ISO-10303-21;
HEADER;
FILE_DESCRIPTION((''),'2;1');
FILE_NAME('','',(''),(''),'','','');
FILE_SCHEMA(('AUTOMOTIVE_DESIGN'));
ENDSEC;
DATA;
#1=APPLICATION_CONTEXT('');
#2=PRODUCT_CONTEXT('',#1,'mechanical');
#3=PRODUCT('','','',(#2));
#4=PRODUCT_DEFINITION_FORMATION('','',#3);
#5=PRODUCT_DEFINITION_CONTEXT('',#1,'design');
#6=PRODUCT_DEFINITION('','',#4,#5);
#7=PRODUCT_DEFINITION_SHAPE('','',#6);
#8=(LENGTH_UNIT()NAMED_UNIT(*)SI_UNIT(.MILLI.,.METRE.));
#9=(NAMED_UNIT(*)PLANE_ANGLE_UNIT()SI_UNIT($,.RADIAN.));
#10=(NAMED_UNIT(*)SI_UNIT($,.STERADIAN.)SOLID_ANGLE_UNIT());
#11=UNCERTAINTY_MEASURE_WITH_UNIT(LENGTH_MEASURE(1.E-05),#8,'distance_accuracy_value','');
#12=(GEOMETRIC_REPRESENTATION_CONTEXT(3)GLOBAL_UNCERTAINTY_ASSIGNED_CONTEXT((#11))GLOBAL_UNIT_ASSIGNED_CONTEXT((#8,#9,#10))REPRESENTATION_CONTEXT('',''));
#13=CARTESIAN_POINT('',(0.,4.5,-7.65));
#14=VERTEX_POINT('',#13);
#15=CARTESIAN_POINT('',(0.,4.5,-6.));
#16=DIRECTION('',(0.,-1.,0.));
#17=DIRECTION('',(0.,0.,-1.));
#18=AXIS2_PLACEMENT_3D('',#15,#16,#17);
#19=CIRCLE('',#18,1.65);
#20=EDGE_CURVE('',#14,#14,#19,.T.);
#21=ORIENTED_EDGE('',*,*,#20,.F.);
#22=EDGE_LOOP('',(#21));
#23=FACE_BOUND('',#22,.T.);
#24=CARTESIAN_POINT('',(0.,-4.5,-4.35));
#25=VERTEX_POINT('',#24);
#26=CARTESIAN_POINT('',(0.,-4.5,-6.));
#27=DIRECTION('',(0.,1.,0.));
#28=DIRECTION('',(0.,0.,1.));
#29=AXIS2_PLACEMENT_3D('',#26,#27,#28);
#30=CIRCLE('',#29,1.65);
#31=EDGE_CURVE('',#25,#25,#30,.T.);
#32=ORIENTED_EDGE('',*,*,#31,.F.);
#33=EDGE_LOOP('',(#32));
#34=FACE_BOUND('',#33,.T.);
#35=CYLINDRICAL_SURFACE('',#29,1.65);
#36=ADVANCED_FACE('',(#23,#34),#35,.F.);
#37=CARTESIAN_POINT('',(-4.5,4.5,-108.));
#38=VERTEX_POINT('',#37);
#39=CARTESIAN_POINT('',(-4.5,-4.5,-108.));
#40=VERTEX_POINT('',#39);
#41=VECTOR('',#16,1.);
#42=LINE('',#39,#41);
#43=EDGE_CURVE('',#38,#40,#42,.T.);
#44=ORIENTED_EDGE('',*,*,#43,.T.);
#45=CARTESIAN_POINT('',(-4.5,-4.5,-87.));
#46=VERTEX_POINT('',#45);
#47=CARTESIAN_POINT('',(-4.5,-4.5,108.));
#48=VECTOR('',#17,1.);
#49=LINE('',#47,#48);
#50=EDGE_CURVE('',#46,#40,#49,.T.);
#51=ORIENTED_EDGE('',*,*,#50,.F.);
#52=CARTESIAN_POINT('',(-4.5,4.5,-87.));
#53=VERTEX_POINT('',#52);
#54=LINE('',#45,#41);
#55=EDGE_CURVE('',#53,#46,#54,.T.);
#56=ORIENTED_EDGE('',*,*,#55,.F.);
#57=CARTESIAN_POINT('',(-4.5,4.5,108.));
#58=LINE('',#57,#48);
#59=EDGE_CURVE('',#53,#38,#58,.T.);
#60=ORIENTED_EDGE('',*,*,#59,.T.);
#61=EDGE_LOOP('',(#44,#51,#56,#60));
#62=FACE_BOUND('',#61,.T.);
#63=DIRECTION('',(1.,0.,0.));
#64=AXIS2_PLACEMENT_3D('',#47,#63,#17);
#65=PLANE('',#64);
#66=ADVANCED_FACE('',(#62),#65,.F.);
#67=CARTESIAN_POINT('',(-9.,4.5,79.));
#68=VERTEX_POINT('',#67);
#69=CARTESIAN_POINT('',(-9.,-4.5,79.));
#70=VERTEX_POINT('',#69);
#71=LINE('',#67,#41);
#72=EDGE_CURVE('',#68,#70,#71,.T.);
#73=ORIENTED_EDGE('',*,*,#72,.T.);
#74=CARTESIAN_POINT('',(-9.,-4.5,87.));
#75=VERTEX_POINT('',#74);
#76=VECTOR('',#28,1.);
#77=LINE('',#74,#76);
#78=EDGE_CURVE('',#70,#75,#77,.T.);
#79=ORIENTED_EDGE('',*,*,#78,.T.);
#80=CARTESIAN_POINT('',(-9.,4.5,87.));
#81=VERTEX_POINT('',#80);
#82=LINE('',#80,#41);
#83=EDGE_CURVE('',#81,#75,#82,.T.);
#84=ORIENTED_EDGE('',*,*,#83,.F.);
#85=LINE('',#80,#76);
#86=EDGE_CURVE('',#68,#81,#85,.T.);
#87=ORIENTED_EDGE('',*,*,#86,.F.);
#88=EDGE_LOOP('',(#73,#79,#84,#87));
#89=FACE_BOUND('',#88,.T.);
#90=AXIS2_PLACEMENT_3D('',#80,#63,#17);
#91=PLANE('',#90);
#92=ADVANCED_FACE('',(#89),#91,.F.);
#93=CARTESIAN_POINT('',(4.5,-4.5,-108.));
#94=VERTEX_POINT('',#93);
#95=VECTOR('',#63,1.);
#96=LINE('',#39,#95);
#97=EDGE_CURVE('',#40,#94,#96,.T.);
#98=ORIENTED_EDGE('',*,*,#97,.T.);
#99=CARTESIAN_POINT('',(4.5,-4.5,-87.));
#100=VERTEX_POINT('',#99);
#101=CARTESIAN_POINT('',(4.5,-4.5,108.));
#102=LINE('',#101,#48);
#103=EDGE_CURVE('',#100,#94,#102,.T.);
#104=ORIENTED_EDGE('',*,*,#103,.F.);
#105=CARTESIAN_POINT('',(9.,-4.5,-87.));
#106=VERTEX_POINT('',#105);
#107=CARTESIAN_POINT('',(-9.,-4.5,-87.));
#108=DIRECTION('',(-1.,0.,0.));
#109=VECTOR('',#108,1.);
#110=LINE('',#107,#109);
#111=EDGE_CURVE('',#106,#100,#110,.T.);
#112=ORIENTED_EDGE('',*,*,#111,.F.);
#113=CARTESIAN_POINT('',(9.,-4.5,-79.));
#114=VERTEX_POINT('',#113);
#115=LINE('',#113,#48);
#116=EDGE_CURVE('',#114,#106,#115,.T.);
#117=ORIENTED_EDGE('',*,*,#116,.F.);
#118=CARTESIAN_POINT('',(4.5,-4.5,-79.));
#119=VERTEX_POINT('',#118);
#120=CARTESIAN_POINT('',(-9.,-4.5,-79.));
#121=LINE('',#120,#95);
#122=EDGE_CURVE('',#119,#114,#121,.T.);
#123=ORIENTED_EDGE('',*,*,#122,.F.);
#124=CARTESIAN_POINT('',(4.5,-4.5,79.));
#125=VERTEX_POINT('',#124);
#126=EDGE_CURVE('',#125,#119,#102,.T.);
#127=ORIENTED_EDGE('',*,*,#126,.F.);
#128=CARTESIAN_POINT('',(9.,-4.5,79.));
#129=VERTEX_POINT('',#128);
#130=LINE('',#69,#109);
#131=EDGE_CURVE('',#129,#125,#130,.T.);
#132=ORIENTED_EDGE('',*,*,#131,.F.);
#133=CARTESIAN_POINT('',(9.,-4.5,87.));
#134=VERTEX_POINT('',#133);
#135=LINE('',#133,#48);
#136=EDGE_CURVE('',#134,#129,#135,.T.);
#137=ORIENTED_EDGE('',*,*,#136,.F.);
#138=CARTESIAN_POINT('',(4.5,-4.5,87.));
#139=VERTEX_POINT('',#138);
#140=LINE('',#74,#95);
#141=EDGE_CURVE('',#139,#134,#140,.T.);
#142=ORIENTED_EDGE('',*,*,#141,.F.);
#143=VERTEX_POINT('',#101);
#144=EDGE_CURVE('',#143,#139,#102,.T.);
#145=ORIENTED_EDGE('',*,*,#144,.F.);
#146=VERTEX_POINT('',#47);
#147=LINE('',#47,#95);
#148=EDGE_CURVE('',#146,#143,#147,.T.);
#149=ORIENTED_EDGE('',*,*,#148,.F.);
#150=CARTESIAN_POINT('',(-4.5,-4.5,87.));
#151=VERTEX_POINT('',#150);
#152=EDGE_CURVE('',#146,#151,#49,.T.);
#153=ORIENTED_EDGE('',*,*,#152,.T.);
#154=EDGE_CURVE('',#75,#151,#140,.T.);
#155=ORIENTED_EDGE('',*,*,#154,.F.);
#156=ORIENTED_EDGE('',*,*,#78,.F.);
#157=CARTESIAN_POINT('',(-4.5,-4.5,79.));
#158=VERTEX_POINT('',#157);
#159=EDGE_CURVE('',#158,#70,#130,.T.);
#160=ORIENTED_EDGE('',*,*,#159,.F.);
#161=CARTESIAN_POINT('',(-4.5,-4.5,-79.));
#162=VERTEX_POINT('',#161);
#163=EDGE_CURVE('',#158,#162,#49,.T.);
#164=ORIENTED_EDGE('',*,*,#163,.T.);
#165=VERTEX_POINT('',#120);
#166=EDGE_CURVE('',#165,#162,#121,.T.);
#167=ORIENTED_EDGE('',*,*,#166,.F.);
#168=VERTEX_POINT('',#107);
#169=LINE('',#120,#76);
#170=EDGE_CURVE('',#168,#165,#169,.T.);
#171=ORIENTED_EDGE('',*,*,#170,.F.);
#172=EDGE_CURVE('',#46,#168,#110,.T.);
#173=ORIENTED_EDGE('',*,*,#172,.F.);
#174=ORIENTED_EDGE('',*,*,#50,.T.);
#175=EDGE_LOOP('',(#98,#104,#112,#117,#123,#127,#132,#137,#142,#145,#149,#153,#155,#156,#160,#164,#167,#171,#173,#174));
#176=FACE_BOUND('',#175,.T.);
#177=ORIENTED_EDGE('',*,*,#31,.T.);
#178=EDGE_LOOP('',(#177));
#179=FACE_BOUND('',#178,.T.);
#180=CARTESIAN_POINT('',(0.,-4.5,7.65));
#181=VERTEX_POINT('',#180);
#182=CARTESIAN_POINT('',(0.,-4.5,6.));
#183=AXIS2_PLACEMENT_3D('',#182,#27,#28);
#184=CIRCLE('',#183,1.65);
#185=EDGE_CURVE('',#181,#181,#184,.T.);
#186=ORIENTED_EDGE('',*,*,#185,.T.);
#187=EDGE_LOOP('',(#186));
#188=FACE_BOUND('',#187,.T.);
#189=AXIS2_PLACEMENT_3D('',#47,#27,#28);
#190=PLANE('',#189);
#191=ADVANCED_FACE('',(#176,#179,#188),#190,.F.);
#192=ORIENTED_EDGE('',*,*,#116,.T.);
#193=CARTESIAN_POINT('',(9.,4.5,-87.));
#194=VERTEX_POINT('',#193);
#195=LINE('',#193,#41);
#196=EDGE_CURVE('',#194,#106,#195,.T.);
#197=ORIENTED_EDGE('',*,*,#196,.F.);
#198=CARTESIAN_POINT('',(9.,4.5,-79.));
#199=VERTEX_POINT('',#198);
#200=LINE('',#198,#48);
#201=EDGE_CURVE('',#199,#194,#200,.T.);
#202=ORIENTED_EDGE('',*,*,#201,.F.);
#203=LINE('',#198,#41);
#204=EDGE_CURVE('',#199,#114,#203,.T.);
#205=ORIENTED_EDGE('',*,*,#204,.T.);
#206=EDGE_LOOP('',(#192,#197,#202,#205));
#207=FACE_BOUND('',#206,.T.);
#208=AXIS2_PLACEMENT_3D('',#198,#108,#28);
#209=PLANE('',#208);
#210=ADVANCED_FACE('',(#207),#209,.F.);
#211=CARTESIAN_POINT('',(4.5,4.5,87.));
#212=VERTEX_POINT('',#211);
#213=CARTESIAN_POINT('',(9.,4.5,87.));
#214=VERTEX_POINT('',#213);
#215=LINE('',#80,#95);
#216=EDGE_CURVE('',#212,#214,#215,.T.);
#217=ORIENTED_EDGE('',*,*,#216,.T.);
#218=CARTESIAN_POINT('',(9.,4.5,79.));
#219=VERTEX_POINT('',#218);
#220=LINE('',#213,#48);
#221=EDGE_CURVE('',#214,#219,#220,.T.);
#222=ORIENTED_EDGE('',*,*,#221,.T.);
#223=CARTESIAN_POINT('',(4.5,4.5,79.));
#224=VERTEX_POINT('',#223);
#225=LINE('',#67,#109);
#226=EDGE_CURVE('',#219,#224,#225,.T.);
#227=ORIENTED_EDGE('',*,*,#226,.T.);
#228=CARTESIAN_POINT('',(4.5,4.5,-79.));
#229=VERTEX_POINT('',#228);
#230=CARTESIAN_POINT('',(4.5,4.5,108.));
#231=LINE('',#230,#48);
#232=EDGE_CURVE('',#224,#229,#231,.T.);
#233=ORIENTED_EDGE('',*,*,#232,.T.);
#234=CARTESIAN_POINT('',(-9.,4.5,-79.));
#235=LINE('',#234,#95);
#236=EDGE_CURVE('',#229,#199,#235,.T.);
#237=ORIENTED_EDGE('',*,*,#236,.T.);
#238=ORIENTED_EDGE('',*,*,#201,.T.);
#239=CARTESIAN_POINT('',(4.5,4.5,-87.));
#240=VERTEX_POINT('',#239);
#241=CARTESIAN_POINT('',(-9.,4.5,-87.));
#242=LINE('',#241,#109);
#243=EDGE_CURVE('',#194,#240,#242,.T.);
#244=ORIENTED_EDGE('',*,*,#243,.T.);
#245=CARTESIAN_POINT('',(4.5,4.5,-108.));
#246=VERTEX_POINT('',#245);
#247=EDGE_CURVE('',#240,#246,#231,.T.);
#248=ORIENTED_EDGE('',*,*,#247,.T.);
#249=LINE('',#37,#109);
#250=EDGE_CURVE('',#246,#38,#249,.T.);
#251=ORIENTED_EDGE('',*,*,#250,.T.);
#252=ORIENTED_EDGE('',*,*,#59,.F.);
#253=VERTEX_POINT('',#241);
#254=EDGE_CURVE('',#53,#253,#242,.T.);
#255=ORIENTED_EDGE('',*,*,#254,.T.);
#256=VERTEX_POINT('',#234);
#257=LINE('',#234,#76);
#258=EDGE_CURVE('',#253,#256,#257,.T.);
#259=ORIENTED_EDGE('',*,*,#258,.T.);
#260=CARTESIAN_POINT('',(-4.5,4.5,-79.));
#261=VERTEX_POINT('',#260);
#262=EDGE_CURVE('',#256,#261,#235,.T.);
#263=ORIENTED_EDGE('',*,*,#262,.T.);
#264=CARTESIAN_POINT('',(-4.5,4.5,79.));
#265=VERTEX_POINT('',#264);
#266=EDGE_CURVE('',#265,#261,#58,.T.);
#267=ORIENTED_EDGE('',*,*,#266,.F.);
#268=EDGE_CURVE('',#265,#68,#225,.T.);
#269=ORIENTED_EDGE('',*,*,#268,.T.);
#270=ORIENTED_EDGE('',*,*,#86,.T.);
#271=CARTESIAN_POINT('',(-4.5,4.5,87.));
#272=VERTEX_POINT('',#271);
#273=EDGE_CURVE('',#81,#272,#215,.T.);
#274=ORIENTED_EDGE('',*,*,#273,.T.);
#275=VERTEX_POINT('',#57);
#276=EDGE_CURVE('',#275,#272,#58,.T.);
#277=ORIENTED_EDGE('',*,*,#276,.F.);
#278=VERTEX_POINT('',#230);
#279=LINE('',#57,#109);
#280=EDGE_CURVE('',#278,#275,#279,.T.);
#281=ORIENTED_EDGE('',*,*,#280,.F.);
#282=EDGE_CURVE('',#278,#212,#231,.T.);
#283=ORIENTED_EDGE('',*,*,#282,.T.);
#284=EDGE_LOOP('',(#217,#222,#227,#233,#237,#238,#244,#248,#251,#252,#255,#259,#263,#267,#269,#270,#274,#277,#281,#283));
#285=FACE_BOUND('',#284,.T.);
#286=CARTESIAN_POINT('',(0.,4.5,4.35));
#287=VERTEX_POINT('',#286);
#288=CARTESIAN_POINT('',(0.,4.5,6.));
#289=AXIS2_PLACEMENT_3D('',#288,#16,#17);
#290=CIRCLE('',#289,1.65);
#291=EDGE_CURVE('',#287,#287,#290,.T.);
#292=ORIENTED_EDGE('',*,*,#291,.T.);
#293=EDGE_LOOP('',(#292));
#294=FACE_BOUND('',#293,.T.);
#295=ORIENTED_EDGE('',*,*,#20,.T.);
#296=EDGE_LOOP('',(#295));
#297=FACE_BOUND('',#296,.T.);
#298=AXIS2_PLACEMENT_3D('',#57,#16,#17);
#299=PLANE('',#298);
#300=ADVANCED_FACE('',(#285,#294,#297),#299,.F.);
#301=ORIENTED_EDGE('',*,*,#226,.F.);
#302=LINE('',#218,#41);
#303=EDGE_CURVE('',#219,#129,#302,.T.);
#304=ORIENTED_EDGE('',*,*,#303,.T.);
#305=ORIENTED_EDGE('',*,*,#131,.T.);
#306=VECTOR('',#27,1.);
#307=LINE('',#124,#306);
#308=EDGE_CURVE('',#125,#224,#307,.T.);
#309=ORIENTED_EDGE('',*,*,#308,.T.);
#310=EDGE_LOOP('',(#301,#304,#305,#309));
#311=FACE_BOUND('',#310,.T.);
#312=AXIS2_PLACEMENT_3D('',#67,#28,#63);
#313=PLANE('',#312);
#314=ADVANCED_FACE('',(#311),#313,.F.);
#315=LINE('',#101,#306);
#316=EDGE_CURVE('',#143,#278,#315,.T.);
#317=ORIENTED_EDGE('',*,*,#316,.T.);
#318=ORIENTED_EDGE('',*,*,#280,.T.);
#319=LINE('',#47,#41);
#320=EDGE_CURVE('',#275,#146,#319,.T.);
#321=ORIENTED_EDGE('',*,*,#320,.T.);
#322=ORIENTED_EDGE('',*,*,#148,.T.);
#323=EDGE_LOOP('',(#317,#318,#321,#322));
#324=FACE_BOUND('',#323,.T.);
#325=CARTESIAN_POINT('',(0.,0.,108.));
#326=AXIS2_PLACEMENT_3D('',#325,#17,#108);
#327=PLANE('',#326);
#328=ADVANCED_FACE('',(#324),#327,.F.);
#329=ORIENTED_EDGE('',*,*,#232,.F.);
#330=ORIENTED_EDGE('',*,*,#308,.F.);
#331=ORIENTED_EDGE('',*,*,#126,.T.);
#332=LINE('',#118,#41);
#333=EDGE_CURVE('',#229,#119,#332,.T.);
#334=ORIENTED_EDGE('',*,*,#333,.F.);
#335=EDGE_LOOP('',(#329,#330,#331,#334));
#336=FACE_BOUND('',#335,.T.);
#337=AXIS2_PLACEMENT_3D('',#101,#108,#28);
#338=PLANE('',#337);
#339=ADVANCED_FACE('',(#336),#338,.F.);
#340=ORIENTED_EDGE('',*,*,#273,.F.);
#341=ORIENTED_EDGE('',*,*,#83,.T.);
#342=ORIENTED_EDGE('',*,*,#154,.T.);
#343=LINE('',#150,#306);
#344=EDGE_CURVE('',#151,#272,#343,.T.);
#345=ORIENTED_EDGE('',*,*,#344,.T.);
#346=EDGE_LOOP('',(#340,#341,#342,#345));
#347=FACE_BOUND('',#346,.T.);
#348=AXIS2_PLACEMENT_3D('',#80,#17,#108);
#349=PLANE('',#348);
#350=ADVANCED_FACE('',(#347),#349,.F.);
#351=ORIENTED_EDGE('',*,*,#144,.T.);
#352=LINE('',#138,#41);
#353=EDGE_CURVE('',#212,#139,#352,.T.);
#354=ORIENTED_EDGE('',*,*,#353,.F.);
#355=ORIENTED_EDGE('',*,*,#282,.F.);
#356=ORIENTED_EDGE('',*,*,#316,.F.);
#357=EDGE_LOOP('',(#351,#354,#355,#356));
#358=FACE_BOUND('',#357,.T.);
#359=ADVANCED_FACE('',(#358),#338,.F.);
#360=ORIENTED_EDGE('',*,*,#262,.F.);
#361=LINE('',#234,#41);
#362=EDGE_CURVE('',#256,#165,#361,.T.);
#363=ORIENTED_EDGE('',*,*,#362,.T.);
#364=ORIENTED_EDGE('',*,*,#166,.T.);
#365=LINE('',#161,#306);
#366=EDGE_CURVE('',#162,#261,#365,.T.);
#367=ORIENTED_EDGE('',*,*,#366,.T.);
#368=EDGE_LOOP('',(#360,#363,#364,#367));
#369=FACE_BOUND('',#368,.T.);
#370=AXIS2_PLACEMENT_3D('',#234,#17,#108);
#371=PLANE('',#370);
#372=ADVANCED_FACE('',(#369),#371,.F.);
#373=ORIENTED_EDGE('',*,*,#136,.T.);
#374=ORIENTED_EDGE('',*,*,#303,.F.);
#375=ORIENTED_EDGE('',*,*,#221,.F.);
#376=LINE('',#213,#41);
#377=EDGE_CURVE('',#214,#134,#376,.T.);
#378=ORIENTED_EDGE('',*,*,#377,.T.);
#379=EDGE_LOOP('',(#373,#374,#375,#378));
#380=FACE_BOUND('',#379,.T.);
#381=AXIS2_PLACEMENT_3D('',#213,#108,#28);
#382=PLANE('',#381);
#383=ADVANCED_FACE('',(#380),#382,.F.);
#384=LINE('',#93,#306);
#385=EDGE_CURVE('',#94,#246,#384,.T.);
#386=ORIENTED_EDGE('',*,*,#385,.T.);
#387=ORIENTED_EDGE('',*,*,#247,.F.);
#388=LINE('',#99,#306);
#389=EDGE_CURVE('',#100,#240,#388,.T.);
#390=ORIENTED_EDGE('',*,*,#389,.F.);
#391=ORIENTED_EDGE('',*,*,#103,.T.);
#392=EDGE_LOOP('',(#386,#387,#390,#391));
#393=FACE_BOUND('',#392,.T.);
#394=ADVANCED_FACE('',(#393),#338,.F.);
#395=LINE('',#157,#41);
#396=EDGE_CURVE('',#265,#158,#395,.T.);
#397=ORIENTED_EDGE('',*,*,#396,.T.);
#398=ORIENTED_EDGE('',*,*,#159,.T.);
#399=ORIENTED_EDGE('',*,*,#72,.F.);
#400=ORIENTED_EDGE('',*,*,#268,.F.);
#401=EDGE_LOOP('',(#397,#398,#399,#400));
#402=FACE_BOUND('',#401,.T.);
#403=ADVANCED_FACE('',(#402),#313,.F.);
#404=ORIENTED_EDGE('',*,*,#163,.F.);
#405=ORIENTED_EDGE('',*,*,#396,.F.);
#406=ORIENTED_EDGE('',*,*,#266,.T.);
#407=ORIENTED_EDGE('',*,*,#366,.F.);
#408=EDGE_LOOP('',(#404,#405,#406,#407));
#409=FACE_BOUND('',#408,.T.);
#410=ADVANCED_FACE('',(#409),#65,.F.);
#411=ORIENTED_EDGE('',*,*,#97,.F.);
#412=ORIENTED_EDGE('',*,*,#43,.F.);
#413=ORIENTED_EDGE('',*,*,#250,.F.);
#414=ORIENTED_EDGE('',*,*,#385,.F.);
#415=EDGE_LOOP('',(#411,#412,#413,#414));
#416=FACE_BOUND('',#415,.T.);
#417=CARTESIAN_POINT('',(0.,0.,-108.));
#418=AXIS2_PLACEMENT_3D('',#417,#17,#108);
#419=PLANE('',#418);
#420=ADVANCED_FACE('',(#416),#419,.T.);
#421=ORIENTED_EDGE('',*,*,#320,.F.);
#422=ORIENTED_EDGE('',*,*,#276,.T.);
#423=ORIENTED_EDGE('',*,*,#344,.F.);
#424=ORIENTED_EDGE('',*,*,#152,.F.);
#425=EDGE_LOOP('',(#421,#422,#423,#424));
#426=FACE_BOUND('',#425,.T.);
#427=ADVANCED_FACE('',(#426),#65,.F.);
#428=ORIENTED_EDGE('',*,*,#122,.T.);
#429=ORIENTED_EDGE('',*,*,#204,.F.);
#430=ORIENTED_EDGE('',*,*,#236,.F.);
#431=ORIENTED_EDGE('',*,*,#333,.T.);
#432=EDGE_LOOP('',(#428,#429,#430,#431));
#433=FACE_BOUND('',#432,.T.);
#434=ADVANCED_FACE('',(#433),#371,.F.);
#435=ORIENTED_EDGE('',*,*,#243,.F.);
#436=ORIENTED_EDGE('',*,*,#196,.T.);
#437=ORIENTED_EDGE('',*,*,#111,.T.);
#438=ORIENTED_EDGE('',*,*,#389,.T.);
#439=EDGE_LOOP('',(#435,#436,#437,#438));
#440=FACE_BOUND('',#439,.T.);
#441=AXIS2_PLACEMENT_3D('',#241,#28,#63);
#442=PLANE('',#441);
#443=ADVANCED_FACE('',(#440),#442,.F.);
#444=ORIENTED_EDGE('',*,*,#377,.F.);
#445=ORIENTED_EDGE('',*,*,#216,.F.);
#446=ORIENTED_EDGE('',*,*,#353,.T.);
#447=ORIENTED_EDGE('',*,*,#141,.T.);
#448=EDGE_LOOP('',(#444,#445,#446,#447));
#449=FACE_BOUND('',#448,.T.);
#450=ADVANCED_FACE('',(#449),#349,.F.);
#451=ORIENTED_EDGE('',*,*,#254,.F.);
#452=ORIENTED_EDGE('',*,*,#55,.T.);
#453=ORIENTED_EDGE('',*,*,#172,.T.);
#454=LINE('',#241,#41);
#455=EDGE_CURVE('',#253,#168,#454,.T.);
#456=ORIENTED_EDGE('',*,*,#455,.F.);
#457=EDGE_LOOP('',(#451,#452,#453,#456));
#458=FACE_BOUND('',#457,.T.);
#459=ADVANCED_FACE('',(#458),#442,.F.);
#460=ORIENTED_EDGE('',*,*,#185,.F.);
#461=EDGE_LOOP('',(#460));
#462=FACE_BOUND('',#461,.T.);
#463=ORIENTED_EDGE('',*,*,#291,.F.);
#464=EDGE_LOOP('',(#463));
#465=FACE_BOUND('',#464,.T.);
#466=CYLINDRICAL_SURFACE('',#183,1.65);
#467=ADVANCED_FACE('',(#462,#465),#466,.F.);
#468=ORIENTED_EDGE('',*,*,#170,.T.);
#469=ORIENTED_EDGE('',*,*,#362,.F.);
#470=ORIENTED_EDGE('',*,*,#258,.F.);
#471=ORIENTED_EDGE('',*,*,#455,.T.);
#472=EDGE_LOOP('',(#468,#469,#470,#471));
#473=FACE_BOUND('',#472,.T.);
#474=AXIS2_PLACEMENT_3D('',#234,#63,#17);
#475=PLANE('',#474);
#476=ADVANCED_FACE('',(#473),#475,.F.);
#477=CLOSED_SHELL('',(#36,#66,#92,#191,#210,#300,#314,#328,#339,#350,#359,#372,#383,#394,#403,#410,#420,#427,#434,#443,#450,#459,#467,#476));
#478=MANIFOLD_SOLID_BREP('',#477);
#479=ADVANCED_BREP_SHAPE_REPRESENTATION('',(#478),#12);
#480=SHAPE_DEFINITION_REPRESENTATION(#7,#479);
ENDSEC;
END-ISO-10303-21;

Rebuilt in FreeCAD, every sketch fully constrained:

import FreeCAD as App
import Part
import Sketcher


def add_polygon(sketch, points):
    """Adds a closed chain of lines whose ends are joined by coincident constraints."""
    first, n = sketch.GeometryCount, len(points)
    for a, b in zip(points, points[1:] + points[:1]):
        sketch.addGeometry(Part.LineSegment(App.Vector(*a, 0), App.Vector(*b, 0)), False)
    for i in range(n):
        sketch.addConstraint(Sketcher.Constraint("Coincident", first + i, 2, first + (i + 1) % n, 1))

doc = App.newDocument("Part")
params = doc.addObject("Spreadsheet::Sheet", "Params")
for row, (alias, value) in enumerate([
    ("sketch1_width", "9 mm"),
    ("pad1_length", "216 mm"),
    ("sketch2_width", "18 mm"),
    ("sketch2_height", "8 mm"),
    ("pad2_length", "9 mm"),
    ("sketch3_diameter", "3.3 mm"),
], start=1):
    params.set(f"A{row}", alias)
    params.set(f"B{row}", "=" + value)
    params.setAlias(f"B{row}", alias)

body = doc.addObject("PartDesign::Body", "Body")

# Sketch on XY plane
sketch1 = doc.addObject("Sketcher::SketchObject", "Sketch")
body.addObject(sketch1)
sketch1.AttachmentSupport = (doc.XY_Plane, [""])
sketch1.MapMode = "FlatFace"
add_polygon(sketch1, [(-4, 4), (-4, -4), (4, -4), (4, 4)])  # lines 0-3
sketch1.addConstraint([
    Sketcher.Constraint("Vertical", 0),
    Sketcher.Constraint("Horizontal", 1),
    Sketcher.Constraint("Vertical", 2),
    Sketcher.Constraint("Horizontal", 3),
    Sketcher.Constraint("Symmetric", 0, 2, 2, 2, -1, 1),
    Sketcher.Constraint("Equal", 3, 0),
    Sketcher.Constraint("DistanceX", 1, 1, 1, 2, 9.0),
])
sketch1.setExpression("Constraints[10]", "Params.sketch1_width")
pad1 = doc.addObject("PartDesign::Pad", "Pad")
body.addObject(pad1)
pad1.Profile = sketch1
pad1.setExpression("Length", "Params.pad1_length")
pad1.Midplane = True

# Sketch on XZ plane
sketch2 = doc.addObject("Sketcher::SketchObject", "Sketch001")
body.addObject(sketch2)
sketch2.AttachmentSupport = (doc.XZ_Plane, [""])
sketch2.MapMode = "FlatFace"
add_polygon(sketch2, [(-9, -87), (-9, -79), (9, -79), (9, -87)])  # lines 0-3
add_polygon(sketch2, [(-9, 79), (-9, 87), (9, 87), (9, 79)])  # lines 4-7
sketch2.addConstraint([
    Sketcher.Constraint("Vertical", 0),
    Sketcher.Constraint("Horizontal", 1),
    Sketcher.Constraint("Vertical", 2),
    Sketcher.Constraint("Horizontal", 3),
    Sketcher.Constraint("Vertical", 4),
    Sketcher.Constraint("Horizontal", 5),
    Sketcher.Constraint("Vertical", 6),
    Sketcher.Constraint("Horizontal", 7),
    Sketcher.Constraint("Symmetric", 2, 2, 4, 2, -1, 1),
    Sketcher.Constraint("Symmetric", 0, 2, 6, 2, -1, 1),
    Sketcher.Constraint("Vertical", 3, 2, 4, 2),
    Sketcher.Constraint("DistanceX", 1, 1, 1, 2, 18.0),
    Sketcher.Constraint("DistanceY", 0, 1, 0, 2, 8.0),
    Sketcher.Constraint("DistanceY", 0, 2, -1, 1, 79.0),
])
sketch2.setExpression("Constraints[19]", "Params.sketch2_width")
sketch2.setExpression("Constraints[20]", "Params.sketch2_height")
pad2 = doc.addObject("PartDesign::Pad", "Pad001")
body.addObject(pad2)
pad2.Profile = sketch2
pad2.setExpression("Length", "Params.pad2_length")
pad2.Midplane = True

# Sketch on XZ plane
sketch3 = doc.addObject("Sketcher::SketchObject", "Sketch002")
body.addObject(sketch3)
sketch3.AttachmentSupport = (doc.XZ_Plane, [""])
sketch3.MapMode = "FlatFace"
sketch3.AttachmentOffset = App.Placement(App.Vector(0, 0, -4.5), App.Rotation())
sketch3.addGeometry([
    Part.Circle(App.Vector(0, -6, 0), App.Vector(0, 0, 1), 1.6),
    Part.Circle(App.Vector(0, 6, 0), App.Vector(0, 0, 1), 1.6),
], False)
sketch3.addConstraint([
    Sketcher.Constraint("Equal", 0, 1),
    Sketcher.Constraint("Symmetric", 0, 3, 1, 3, -1, 1),
    Sketcher.Constraint("PointOnObject", 0, 3, -2),
    Sketcher.Constraint("Diameter", 0, 3.3),
    Sketcher.Constraint("DistanceY", 0, 3, -1, 1, 6.0),
])
sketch3.setExpression("Constraints[3]", "Params.sketch3_diameter")
pocket1 = doc.addObject("PartDesign::Pocket", "Pocket")
body.addObject(pocket1)
pocket1.Profile = sketch3
pocket1.Type = "ThroughAll"
pocket1.Midplane = True

doc.recompute()
